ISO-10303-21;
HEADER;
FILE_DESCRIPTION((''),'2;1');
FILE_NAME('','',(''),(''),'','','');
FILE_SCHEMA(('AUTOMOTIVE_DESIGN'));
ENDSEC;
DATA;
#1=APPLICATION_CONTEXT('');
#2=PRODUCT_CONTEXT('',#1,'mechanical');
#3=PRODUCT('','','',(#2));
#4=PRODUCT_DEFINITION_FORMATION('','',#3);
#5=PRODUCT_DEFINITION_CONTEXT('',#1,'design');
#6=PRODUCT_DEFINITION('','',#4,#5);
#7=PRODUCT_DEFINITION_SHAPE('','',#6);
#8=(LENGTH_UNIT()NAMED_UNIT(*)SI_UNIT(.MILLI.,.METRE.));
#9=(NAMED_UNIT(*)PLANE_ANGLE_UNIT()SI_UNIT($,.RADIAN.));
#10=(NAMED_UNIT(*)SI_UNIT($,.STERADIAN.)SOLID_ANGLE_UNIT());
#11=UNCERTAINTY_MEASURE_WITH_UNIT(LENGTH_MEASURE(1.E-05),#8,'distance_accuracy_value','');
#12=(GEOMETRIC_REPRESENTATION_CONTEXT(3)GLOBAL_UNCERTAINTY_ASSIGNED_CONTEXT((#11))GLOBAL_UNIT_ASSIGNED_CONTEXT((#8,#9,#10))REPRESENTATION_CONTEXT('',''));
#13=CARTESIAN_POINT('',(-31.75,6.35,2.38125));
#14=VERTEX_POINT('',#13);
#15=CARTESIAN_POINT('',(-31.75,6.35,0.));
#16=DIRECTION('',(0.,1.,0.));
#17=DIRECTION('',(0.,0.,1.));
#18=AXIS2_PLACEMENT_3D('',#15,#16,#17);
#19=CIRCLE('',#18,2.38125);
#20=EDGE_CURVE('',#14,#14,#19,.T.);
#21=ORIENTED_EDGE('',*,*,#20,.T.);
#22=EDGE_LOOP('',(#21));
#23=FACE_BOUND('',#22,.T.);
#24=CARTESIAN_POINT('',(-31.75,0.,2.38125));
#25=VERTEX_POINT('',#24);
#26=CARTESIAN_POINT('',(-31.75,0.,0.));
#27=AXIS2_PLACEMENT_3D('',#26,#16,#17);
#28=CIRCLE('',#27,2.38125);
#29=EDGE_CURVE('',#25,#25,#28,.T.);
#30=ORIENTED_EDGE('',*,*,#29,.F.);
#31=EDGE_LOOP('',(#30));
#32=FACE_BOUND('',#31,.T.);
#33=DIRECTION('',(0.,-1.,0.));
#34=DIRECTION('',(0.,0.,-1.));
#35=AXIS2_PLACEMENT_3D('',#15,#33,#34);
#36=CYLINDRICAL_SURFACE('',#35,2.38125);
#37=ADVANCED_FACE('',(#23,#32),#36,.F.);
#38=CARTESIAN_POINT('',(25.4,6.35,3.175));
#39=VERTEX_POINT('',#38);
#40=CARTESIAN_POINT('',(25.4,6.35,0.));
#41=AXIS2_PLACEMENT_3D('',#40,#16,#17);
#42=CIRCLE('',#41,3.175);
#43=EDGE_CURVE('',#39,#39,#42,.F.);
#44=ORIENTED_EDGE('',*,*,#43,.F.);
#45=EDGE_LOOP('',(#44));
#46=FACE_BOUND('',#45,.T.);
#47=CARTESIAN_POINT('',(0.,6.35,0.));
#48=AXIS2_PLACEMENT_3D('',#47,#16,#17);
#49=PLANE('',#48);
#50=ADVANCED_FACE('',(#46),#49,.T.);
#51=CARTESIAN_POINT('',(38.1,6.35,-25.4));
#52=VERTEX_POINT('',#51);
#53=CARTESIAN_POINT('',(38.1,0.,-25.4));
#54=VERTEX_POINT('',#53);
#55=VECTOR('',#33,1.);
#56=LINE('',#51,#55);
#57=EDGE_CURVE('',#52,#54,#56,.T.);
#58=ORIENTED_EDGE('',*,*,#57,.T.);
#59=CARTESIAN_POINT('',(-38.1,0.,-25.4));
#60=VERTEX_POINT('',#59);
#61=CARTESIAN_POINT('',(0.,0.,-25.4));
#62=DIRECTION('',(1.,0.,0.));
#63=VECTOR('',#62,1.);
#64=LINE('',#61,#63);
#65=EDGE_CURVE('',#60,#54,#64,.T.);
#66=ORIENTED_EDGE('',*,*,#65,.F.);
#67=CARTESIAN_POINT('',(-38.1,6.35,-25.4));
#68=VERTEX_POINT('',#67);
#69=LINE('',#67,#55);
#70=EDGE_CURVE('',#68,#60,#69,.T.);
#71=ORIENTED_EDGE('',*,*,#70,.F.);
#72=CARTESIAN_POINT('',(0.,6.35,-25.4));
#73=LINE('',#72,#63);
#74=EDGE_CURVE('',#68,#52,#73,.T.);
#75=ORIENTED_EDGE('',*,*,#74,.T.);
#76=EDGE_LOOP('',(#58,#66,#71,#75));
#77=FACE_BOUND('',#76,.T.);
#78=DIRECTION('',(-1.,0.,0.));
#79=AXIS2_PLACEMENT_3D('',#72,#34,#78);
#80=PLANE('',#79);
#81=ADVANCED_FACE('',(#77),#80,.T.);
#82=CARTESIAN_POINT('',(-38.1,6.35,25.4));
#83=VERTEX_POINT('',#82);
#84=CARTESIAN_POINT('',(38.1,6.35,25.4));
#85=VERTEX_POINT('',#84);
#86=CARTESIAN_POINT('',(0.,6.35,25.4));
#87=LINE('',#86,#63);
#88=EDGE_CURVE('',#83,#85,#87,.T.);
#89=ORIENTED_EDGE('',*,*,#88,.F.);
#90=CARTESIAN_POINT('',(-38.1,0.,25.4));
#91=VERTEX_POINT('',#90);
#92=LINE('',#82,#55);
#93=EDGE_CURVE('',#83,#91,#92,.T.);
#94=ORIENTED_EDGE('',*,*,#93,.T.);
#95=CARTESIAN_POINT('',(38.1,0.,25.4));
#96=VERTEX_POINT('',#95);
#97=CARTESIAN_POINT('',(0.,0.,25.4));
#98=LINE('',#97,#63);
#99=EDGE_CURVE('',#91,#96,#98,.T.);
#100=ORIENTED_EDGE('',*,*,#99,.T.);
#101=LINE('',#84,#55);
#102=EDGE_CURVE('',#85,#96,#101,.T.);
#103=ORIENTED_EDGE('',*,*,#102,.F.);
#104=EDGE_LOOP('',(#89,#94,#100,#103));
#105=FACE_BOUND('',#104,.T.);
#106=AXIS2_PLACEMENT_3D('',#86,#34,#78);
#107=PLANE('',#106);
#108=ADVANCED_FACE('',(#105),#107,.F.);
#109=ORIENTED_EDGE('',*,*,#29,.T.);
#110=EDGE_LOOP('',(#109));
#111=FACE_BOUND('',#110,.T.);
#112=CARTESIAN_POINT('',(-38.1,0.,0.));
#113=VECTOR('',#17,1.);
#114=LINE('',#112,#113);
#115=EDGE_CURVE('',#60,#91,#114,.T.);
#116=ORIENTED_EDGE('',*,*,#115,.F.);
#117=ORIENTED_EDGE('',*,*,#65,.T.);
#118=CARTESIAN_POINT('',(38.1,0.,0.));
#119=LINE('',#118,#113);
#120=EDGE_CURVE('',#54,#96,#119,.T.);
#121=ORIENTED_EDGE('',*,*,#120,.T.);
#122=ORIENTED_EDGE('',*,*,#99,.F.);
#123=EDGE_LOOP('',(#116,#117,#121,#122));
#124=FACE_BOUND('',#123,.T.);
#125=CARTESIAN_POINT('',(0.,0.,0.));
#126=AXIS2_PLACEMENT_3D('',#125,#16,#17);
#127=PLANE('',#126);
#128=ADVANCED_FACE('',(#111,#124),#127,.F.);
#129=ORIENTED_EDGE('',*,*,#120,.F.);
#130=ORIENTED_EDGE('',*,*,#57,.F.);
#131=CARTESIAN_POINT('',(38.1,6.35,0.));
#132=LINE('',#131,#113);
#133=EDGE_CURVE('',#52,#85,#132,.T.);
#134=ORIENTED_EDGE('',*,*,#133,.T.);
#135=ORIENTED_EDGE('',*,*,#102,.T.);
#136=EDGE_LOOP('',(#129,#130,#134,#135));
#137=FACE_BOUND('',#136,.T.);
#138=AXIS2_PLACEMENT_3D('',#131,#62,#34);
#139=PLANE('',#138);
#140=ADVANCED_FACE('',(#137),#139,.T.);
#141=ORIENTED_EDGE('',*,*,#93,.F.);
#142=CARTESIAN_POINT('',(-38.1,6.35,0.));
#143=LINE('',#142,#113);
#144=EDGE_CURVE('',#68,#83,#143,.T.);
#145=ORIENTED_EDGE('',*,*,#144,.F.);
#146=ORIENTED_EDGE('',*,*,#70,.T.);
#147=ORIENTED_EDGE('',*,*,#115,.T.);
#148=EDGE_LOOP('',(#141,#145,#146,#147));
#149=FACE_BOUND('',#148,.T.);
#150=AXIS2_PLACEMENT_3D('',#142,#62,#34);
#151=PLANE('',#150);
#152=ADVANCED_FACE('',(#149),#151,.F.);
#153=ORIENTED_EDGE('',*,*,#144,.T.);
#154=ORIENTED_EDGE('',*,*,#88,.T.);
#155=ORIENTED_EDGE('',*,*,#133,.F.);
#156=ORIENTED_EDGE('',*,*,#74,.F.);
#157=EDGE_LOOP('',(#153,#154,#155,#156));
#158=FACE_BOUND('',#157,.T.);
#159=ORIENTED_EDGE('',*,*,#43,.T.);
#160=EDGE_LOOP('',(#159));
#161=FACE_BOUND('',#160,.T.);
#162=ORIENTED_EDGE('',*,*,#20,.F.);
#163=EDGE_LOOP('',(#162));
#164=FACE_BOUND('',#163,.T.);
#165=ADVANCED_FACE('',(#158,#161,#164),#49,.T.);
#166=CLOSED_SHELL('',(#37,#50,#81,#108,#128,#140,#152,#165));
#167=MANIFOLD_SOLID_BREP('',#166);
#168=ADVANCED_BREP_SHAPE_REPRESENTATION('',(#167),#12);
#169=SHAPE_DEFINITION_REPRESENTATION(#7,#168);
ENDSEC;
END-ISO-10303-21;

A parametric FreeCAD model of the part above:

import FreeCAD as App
import Part
import Sketcher
from FreeCAD import Vector
Q = App.Units.Quantity

doc = App.newDocument("Part")
body = doc.addObject("PartDesign::Body", "Body")

# Sketch on XZ plane
sketch1 = body.newObject("Sketcher::SketchObject", "Sketch")
sketch1.AttachmentSupport = (doc.getObject("XZ_Plane"), [""])
sketch1.MapMode = "FlatFace"
sketch1.addGeometry([
    Part.LineSegment(Vector(-38.1, -25.4, 0), Vector(-38.1, 25.4, 0)),  # 0
    Part.LineSegment(Vector(-38.1, 25.4, 0), Vector(38.1, 25.4, 0)),  # 1
    Part.LineSegment(Vector(38.1, 25.4, 0), Vector(38.1, -25.4, 0)),  # 2
    Part.LineSegment(Vector(38.1, -25.4, 0), Vector(-38.1, -25.4, 0)),  # 3
    Part.Circle(Vector(-31.8, 0, 0), Vector(0, 0, 1), 2.4),  # 4
], False)
sketch1.addConstraint([
    Sketcher.Constraint("Coincident", 0, 2, 1, 1),
    Sketcher.Constraint("Coincident", 1, 2, 2, 1),
    Sketcher.Constraint("Coincident", 2, 2, 3, 1),
    Sketcher.Constraint("Coincident", 3, 2, 0, 1),
    Sketcher.Constraint("Vertical", 0),
    Sketcher.Constraint("Horizontal", 1),
    Sketcher.Constraint("Vertical", 2),
    Sketcher.Constraint("Horizontal", 3),
    Sketcher.Constraint("Symmetric", 0, 2, 2, 2, -1, 1),
    Sketcher.Constraint("PointOnObject", 4, 3, -1),
    Sketcher.Constraint("DistanceX", 1, 1, 1, 2, Q("3 in")),
    Sketcher.Constraint("DistanceY", 0, 1, 0, 2, Q("2 in")),
    Sketcher.Constraint("Diameter", 4, Q("0.1875 in")),
    Sketcher.Constraint("DistanceX", 4, 3, -1, 1, Q("1.25 in")),
])
pad1 = body.newObject("PartDesign::Pad", "Pad")
pad1.Profile = sketch1
pad1.Length = Q("0.25 in")
pad1.Reversed = True

doc.recompute()
